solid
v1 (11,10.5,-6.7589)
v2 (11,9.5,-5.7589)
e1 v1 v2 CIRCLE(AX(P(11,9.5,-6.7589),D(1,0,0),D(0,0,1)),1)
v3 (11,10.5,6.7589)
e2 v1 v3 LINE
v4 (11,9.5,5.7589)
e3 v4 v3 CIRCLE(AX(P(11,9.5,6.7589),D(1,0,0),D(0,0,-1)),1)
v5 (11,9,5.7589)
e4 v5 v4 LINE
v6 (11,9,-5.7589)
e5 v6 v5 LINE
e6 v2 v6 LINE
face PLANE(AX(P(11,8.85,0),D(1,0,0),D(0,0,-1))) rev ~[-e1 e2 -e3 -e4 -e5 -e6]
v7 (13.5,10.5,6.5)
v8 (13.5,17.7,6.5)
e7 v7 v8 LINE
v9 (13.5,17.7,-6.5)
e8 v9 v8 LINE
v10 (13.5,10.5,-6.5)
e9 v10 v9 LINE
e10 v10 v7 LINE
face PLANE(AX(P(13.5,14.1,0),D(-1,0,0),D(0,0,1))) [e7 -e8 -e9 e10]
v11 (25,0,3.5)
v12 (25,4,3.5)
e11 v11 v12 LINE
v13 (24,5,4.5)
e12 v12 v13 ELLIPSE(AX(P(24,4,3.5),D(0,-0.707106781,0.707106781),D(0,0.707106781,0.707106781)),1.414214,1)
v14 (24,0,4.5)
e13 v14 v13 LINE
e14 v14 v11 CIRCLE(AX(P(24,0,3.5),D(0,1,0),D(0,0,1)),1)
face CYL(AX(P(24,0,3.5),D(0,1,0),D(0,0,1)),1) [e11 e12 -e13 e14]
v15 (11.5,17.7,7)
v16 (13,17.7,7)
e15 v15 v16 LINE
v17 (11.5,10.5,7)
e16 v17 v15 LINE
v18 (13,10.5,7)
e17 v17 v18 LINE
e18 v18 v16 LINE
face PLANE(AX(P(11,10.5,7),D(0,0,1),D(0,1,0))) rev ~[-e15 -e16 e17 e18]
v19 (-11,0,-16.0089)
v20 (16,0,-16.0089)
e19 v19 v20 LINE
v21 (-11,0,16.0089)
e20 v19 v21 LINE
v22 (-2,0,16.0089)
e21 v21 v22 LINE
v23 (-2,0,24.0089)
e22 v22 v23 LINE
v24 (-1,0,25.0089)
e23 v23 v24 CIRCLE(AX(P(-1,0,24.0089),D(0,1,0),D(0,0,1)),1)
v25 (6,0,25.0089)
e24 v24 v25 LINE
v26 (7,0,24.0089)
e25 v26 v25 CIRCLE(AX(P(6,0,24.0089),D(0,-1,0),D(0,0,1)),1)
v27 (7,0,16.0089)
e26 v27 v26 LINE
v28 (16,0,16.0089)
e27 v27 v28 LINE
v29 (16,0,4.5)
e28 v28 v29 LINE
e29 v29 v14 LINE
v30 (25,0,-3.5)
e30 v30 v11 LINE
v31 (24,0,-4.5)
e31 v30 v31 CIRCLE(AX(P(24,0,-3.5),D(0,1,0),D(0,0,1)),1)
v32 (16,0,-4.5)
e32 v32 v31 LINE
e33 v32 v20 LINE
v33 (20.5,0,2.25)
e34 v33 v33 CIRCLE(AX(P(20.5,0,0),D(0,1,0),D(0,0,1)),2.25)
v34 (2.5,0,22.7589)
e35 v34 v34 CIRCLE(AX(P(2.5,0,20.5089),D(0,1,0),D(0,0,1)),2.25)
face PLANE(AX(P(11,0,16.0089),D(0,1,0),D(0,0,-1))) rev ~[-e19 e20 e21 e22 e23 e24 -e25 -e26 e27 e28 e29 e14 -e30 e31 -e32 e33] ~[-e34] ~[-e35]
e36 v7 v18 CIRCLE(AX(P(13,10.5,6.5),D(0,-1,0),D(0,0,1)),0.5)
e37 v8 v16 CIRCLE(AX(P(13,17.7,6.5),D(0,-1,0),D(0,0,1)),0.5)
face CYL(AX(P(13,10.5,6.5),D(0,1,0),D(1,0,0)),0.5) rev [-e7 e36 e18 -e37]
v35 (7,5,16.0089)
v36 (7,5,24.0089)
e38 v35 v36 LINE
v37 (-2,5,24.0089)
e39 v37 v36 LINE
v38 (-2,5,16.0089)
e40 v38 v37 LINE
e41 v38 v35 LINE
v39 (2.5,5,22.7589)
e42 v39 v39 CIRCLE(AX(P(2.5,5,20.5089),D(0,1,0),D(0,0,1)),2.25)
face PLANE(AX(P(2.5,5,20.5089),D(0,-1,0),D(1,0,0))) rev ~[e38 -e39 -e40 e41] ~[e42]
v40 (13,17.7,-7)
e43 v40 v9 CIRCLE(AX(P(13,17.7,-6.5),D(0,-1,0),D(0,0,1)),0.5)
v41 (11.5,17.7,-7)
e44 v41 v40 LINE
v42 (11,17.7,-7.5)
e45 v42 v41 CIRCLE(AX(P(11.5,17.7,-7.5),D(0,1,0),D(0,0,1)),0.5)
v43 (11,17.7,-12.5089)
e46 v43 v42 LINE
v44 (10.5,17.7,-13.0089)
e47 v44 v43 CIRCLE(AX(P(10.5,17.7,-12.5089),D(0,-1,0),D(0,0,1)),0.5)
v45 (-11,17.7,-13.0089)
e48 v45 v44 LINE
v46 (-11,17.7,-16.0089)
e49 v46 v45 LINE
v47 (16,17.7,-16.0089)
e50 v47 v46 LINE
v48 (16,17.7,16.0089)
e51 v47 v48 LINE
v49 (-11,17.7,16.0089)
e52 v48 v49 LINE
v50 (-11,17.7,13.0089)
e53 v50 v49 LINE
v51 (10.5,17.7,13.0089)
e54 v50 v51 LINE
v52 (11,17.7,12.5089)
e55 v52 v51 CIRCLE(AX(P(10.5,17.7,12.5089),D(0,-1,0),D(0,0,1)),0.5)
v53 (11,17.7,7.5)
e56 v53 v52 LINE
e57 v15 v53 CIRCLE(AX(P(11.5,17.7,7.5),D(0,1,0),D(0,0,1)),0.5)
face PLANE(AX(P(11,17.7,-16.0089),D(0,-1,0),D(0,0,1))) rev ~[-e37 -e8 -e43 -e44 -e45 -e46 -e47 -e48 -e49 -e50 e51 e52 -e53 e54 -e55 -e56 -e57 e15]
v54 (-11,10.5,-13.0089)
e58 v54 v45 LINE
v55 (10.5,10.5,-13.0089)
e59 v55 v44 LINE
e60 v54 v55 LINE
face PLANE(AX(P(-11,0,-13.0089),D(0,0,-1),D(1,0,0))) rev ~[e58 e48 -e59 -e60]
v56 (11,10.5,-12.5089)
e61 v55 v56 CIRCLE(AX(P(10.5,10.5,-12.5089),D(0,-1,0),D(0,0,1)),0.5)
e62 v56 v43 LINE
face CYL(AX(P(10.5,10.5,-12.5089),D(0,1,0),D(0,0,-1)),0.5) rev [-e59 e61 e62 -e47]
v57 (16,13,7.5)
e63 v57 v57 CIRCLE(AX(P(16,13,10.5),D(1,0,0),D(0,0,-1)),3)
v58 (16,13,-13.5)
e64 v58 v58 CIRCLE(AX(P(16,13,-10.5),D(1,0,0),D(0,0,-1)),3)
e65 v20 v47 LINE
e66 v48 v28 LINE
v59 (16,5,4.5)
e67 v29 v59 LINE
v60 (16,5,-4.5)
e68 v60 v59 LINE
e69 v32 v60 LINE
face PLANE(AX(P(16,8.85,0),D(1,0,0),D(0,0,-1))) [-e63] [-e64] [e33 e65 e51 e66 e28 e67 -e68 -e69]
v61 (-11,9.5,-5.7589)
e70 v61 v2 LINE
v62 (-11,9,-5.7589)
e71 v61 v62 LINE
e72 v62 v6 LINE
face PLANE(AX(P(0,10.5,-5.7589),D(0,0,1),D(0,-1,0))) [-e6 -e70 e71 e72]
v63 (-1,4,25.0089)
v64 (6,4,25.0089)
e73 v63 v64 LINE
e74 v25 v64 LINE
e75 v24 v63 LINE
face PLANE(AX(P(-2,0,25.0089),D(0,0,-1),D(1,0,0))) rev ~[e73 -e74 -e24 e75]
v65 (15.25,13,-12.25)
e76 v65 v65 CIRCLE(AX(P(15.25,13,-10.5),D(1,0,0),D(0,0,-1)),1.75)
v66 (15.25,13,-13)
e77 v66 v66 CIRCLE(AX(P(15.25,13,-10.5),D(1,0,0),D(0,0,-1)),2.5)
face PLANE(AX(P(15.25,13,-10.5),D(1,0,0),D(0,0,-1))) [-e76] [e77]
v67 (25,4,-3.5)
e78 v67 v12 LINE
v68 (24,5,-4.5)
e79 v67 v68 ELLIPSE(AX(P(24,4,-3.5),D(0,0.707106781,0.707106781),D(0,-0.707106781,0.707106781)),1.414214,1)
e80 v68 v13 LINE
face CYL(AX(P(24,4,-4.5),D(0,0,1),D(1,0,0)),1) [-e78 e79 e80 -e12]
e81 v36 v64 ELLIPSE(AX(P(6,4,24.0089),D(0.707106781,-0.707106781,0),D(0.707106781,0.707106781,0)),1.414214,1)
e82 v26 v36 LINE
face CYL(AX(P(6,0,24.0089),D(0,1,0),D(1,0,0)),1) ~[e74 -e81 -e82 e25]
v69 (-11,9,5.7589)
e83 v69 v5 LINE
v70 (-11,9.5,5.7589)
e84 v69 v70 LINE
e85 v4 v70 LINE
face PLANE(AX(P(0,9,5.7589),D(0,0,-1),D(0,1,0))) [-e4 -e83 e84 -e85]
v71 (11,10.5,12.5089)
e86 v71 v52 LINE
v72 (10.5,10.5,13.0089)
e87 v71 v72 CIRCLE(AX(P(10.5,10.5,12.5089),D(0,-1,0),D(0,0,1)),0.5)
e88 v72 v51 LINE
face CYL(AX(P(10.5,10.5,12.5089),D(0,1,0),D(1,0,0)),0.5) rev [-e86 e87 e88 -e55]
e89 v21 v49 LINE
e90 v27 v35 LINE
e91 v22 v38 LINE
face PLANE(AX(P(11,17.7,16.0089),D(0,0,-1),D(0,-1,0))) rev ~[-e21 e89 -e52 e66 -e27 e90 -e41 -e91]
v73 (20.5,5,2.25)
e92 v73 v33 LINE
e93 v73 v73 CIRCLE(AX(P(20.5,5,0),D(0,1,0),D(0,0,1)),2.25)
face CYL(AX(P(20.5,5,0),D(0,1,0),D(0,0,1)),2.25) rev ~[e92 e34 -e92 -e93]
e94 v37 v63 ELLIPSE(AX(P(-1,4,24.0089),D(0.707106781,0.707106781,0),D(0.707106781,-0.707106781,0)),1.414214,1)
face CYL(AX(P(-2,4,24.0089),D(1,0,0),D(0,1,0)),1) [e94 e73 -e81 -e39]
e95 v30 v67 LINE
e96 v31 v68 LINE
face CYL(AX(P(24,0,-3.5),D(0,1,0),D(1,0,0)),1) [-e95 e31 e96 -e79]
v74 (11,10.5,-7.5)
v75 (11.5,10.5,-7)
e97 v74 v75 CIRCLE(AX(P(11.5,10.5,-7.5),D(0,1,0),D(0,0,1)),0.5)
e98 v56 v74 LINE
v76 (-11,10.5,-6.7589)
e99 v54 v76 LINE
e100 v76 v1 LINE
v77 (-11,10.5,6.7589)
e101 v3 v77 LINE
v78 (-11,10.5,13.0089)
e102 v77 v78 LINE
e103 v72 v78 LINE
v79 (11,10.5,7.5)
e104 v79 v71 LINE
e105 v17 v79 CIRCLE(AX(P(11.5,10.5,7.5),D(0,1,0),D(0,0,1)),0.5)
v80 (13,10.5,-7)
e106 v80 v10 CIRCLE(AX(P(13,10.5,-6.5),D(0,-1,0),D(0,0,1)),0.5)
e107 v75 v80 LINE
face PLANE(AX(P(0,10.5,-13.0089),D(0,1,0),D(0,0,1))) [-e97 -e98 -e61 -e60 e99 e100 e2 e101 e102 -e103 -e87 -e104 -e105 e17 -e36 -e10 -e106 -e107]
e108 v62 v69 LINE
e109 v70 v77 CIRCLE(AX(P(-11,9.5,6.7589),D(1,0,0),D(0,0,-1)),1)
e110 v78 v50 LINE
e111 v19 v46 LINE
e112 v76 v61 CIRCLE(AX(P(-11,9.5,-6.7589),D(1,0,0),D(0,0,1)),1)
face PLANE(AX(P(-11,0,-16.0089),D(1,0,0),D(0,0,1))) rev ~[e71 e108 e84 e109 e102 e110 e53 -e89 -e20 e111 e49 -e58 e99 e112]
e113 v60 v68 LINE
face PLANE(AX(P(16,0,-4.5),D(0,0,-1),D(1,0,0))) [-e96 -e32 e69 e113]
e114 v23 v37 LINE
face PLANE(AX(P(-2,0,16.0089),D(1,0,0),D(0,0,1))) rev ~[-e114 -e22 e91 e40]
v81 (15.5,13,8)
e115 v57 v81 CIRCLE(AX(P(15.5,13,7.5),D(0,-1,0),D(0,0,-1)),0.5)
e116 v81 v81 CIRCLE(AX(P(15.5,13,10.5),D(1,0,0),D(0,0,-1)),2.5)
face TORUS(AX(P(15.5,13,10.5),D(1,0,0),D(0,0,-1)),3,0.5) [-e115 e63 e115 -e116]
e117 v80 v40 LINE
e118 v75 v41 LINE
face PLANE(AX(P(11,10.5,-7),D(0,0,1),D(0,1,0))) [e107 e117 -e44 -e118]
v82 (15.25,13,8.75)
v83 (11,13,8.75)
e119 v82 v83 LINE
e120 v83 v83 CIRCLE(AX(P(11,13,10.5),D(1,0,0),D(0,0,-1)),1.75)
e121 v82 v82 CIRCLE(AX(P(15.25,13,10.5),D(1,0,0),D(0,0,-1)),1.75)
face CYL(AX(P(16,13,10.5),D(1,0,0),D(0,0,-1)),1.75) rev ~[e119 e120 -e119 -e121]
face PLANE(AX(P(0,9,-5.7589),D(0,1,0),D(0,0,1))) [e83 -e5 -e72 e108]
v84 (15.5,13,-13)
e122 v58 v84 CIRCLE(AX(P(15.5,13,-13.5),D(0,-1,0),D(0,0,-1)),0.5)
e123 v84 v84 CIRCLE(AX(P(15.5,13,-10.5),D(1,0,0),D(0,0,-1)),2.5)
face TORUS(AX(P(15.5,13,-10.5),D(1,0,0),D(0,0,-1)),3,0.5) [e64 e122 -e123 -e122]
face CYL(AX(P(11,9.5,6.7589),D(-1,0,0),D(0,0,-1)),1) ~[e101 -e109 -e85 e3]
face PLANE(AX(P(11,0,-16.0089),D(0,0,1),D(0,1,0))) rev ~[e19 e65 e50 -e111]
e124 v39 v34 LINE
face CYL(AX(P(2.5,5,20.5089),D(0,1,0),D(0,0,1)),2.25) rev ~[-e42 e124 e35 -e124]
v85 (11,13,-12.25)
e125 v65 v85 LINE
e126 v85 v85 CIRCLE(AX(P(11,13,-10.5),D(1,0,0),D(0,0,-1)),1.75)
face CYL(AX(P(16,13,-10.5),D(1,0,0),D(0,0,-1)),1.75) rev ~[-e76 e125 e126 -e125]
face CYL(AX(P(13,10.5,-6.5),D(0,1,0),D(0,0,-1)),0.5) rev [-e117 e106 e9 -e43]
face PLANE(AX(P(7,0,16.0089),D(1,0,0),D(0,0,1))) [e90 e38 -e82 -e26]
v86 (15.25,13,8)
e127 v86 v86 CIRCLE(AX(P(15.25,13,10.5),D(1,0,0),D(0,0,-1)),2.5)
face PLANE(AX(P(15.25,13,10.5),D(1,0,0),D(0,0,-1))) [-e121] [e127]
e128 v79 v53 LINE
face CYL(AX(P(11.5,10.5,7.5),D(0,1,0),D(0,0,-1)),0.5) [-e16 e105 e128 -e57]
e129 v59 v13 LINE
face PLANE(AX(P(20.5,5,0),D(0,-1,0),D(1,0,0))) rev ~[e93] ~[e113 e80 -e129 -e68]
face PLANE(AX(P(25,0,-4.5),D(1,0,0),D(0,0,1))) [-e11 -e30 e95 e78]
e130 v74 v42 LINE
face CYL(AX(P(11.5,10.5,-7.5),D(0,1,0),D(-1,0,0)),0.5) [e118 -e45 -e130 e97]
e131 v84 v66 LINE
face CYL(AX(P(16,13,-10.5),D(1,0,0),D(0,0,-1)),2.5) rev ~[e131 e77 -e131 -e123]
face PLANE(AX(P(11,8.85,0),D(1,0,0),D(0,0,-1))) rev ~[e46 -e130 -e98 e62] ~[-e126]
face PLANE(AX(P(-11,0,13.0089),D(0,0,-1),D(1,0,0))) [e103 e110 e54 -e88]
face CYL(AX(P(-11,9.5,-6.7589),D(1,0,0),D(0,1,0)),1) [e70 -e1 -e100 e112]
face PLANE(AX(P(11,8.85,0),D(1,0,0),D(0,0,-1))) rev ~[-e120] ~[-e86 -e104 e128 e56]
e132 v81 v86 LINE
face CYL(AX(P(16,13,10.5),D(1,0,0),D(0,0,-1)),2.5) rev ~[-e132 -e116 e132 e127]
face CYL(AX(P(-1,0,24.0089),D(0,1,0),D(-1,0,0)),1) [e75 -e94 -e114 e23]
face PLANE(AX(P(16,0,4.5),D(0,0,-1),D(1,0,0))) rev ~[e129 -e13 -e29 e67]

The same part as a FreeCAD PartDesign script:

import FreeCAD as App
import Part
import Sketcher
from FreeCAD import Vector
Q = App.Units.Quantity


def edges_at(feature, points):
    """Names of the edges that pass closest to the given points."""
    edges = feature.Shape.Edges
    near = lambda p: min(range(len(edges)), key=lambda i: edges[i].distToShape(Part.Vertex(*p))[0])
    return sorted({f"Edge{near(p) + 1}" for p in points})


def add_polygon(sketch, points):
    """Adds a closed chain of lines whose ends are joined by coincident constraints."""
    first, n = sketch.GeometryCount, len(points)
    for a, b in zip(points, points[1:] + points[:1]):
        sketch.addGeometry(Part.LineSegment(App.Vector(*a, 0), App.Vector(*b, 0)), False)
    for i in range(n):
        sketch.addConstraint(Sketcher.Constraint("Coincident", first + i, 2, first + (i + 1) % n, 1))

doc = App.newDocument("Part")
body = doc.addObject("PartDesign::Body", "Body")

# Sketch on YZ plane
sketch1 = body.newObject("Sketcher::SketchObject", "Sketch")
sketch1.AttachmentSupport = (doc.getObject("YZ_Plane"), [""])
sketch1.MapMode = "FlatFace"
add_polygon(sketch1, [(0, 13), (0, -13), (10.5, -13), (10.5, -5.8), (9, -5.8), (9, 5.8), (10.5, 5.8), (10.5, 13)])  # lines 0-7
sketch1.addConstraint(Sketcher.Constraint("Vertical", 0))
sketch1.addConstraint(Sketcher.Constraint("Horizontal", 1))
sketch1.addConstraint(Sketcher.Constraint("Vertical", 2))
sketch1.addConstraint(Sketcher.Constraint("Horizontal", 3))
sketch1.addConstraint(Sketcher.Constraint("Vertical", 4))
sketch1.addConstraint(Sketcher.Constraint("Horizontal", 5))
sketch1.addConstraint(Sketcher.Constraint("Vertical", 6))
sketch1.addConstraint(Sketcher.Constraint("Horizontal", 7))
sketch1.addConstraint(Sketcher.Constraint("Symmetric", 0, 2, 7, 2, -1, 1))
sketch1.addConstraint(Sketcher.Constraint("Symmetric", 2, 2, 5, 2, -1))
sketch1.addConstraint(Sketcher.Constraint("DistanceX", 1, 1, 1, 2, Q("10.5 mm")))
sketch1.addConstraint(Sketcher.Constraint("DistanceX", 3, 2, 3, 1, Q("1.5 mm")))
sketch1.addConstraint(Sketcher.Constraint("DistanceY", 2, 1, 2, 2, Q("7.25 mm")))
sketch1.addConstraint(Sketcher.Constraint("DistanceY", 0, 2, 0, 1, Q("26.0178 mm")))
pad1 = body.newObject("PartDesign::Pad", "Pad")
pad1.Profile = sketch1
pad1.Length = 22
pad1.Midplane = True

# Sketch on XZ plane
sketch2 = body.newObject("Sketcher::SketchObject", "Sketch001")
sketch2.AttachmentSupport = (doc.getObject("XZ_Plane"), [""])
sketch2.MapMode = "FlatFace"
add_polygon(sketch2, [(-11, -13), (-11, -16), (11, -16), (11, -13)])  # lines 0-3
add_polygon(sketch2, [(-11, 16), (-11, 13), (11, 13), (11, 16)])  # lines 4-7
sketch2.addConstraint(Sketcher.Constraint("Vertical", 0))
sketch2.addConstraint(Sketcher.Constraint("Horizontal", 1))
sketch2.addConstraint(Sketcher.Constraint("Vertical", 2))
sketch2.addConstraint(Sketcher.Constraint("Horizontal", 3))
sketch2.addConstraint(Sketcher.Constraint("Vertical", 4))
sketch2.addConstraint(Sketcher.Constraint("Horizontal", 5))
sketch2.addConstraint(Sketcher.Constraint("Vertical", 6))
sketch2.addConstraint(Sketcher.Constraint("Horizontal", 7))
sketch2.addConstraint(Sketcher.Constraint("Symmetric", 2, 2, 4, 2, -1, 1))
sketch2.addConstraint(Sketcher.Constraint("Symmetric", 0, 2, 6, 2, -1, 1))
sketch2.addConstraint(Sketcher.Constraint("Vertical", 3, 2, 4, 2))
sketch2.addConstraint(Sketcher.Constraint("DistanceX", 1, 1, 1, 2, Q("22 mm")))
sketch2.addConstraint(Sketcher.Constraint("DistanceY", 0, 2, 0, 1, Q("3 mm")))
sketch2.addConstraint(Sketcher.Constraint("DistanceY", 0, 2, -1, 1, Q("16.0089 mm")))
pad2 = body.newObject("PartDesign::Pad", "Pad001")
pad2.Profile = sketch2
pad2.Length = 17.7
pad2.Reversed = True

# Sketch on YZ plane
sketch3 = body.newObject("Sketcher::SketchObject", "Sketch002")
sketch3.AttachmentSupport = (doc.getObject("YZ_Plane"), [""])
sketch3.MapMode = "FlatFace"
sketch3.AttachmentOffset = App.Placement(Vector(0, 0, 11), App.Rotation())
add_polygon(sketch3, [(18, 16), (0, 16), (0, -16), (18, -16)])  # lines 0-3
sketch3.addConstraint(Sketcher.Constraint("Horizontal", 0))
sketch3.addConstraint(Sketcher.Constraint("Vertical", 1))
sketch3.addConstraint(Sketcher.Constraint("Horizontal", 2))
sketch3.addConstraint(Sketcher.Constraint("Vertical", 3))
sketch3.addConstraint(Sketcher.Constraint("Symmetric", 0, 2, 1, 2, -1, 1))
sketch3.addConstraint(Sketcher.Constraint("DistanceX", 0, 2, 0, 1, Q("17.7 mm")))
sketch3.addConstraint(Sketcher.Constraint("DistanceY", 1, 2, 1, 1, Q("32.0178 mm")))
pad3 = body.newObject("PartDesign::Pad", "Pad002")
pad3.Profile = sketch3
pad3.Length = 5

# Sketch on YZ plane
sketch4 = body.newObject("Sketcher::SketchObject", "Sketch003")
sketch4.AttachmentSupport = (doc.getObject("YZ_Plane"), [""])
sketch4.MapMode = "FlatFace"
sketch4.AttachmentOffset = App.Placement(Vector(0, 0, 16), App.Rotation())
sketch4.addGeometry(Part.Circle(Vector(13, 10.5, 0), Vector(0, 0, 1), 1.8), False)
sketch4.addGeometry(Part.Circle(Vector(13, -10.5, 0), Vector(0, 0, 1), 1.8), False)
sketch4.addConstraint(Sketcher.Constraint("Equal", 0, 1))
sketch4.addConstraint(Sketcher.Constraint("Symmetric", 0, 3, 1, 3, -1))
sketch4.addConstraint(Sketcher.Constraint("Diameter", 0, Q("3.5 mm")))
sketch4.addConstraint(Sketcher.Constraint("DistanceX", -1, 1, 0, 3, Q("13 mm")))
sketch4.addConstraint(Sketcher.Constraint("DistanceY", 1, 3, 0, 3, Q("21 mm")))
pocket1 = body.newObject("PartDesign::Pocket", "Pocket")
pocket1.Profile = sketch4
pocket1.Type = "ThroughAll"

# Sketch on XZ plane
sketch5 = body.newObject("Sketcher::SketchObject", "Sketch004")
sketch5.AttachmentSupport = (doc.getObject("XZ_Plane"), [""])
sketch5.MapMode = "FlatFace"
add_polygon(sketch5, [(16, 4), (16, -4), (25, -4), (25, 4)])  # lines 0-3
add_polygon(sketch5, [(-2, 25), (-2, 16), (7, 16), (7, 25)])  # lines 4-7
sketch5.addConstraint(Sketcher.Constraint("Vertical", 0))
sketch5.addConstraint(Sketcher.Constraint("Horizontal", 1))
sketch5.addConstraint(Sketcher.Constraint("Vertical", 2))
sketch5.addConstraint(Sketcher.Constraint("Horizontal", 3))
sketch5.addConstraint(Sketcher.Constraint("Vertical", 4))
sketch5.addConstraint(Sketcher.Constraint("Horizontal", 5))
sketch5.addConstraint(Sketcher.Constraint("Vertical", 6))
sketch5.addConstraint(Sketcher.Constraint("Horizontal", 7))
sketch5.addConstraint(Sketcher.Constraint("Equal", 3, 5))
sketch5.addConstraint(Sketcher.Constraint("Equal", 7, 0))
sketch5.addConstraint(Sketcher.Constraint("Equal", 2, 4))
sketch5.addConstraint(Sketcher.Constraint("DistanceX", 1, 1, 1, 2, Q("9 mm")))
sketch5.addConstraint(Sketcher.Constraint("DistanceX", -1, 1, 0, 2, Q("16 mm")))
sketch5.addConstraint(Sketcher.Constraint("DistanceX", 4, 2, -1, 1, Q("2 mm")))
sketch5.addConstraint(Sketcher.Constraint("DistanceY", 0, 2, -1, 1, Q("4.5 mm")))
sketch5.addConstraint(Sketcher.Constraint("DistanceY", -1, 1, 4, 2, Q("16.0089 mm")))
pad4 = body.newObject("PartDesign::Pad", "Pad003")
pad4.Profile = sketch5
pad4.Length = 5
pad4.Reversed = True

# Sketch on XZ plane
sketch6 = body.newObject("Sketcher::SketchObject", "Sketch005")
sketch6.AttachmentSupport = (doc.getObject("XZ_Plane"), [""])
sketch6.MapMode = "FlatFace"
sketch6.AttachmentOffset = App.Placement(Vector(0, 0, -5), App.Rotation())
sketch6.addGeometry(Part.Circle(Vector(20.5, 0, 0), Vector(0, 0, 1), 2.2), False)
sketch6.addGeometry(Part.Circle(Vector(2.5, 20.5, 0), Vector(0, 0, 1), 2.2), False)
sketch6.addConstraint(Sketcher.Constraint("Equal", 0, 1))
sketch6.addConstraint(Sketcher.Constraint("PointOnObject", 0, 3, -1))
sketch6.addConstraint(Sketcher.Constraint("Diameter", 0, Q("4.5 mm")))
sketch6.addConstraint(Sketcher.Constraint("DistanceX", 1, 3, 0, 3, Q("18 mm")))
sketch6.addConstraint(Sketcher.Constraint("DistanceX", -1, 1, 0, 3, Q("20.5 mm")))
sketch6.addConstraint(Sketcher.Constraint("DistanceY", -1, 1, 1, 3, Q("20.5089 mm")))
pocket2 = body.newObject("PartDesign::Pocket", "Pocket001")
pocket2.Profile = sketch6
pocket2.Type = "ThroughAll"
pocket2.Reversed = True
doc.recompute()

fillet = body.newObject("PartDesign::Fillet", "Fillet")
fillet.Base = (pocket2, edges_at(pocket2, [
    (0, 10.5, 5.759),
    (0, 10.5, -5.759),
    (25, 5, 0),
    (25, 2.5, 4.5),
    (25, 2.5, -4.5),
    (7, 2.5, 25.009),
    (2.5, 5, 25.009),
    (-2, 2.5, 25.009),
]))
fillet.Radius = 1

# Sketch on YZ plane
sketch7 = body.newObject("Sketcher::SketchObject", "Sketch006")
sketch7.AttachmentSupport = (doc.getObject("YZ_Plane"), [""])
sketch7.MapMode = "FlatFace"
sketch7.AttachmentOffset = App.Placement(Vector(0, 0, 16), App.Rotation())
sketch7.addGeometry(Part.Circle(Vector(13, 10.5, 0), Vector(0, 0, 1), 2.5), False)
sketch7.addGeometry(Part.Circle(Vector(13, -10.5, 0), Vector(0, 0, 1), 2.5), False)
sketch7.addConstraint(Sketcher.Constraint("Equal", 0, 1))
sketch7.addConstraint(Sketcher.Constraint("Symmetric", 0, 3, 1, 3, -1))
sketch7.addConstraint(Sketcher.Constraint("Diameter", 0, Q("5 mm")))
sketch7.addConstraint(Sketcher.Constraint("DistanceX", -1, 1, 0, 3, Q("13 mm")))
sketch7.addConstraint(Sketcher.Constraint("DistanceY", 1, 3, 0, 3, Q("21 mm")))
pocket3 = body.newObject("PartDesign::Pocket", "Pocket002")
pocket3.Profile = sketch7
pocket3.Length = 0.75
doc.recompute()

fillet2 = body.newObject("PartDesign::Fillet", "Fillet001")
fillet2.Base = (pocket3, edges_at(pocket3, [(16, 13, 13), (16, 13, -8)]))
fillet2.Radius = 0.5

# Sketch on YZ plane
sketch8 = body.newObject("Sketcher::SketchObject", "Sketch007")
sketch8.AttachmentSupport = (doc.getObject("YZ_Plane"), [""])
sketch8.MapMode = "FlatFace"
sketch8.AttachmentOffset = App.Placement(Vector(0, 0, 11), App.Rotation())
add_polygon(sketch8, [(18, -7), (10, -7), (10, 7), (18, 7)])  # lines 0-3
sketch8.addConstraint(Sketcher.Constraint("Horizontal", 0))
sketch8.addConstraint(Sketcher.Constraint("Vertical", 1))
sketch8.addConstraint(Sketcher.Constraint("Horizontal", 2))
sketch8.addConstraint(Sketcher.Constraint("Vertical", 3))
sketch8.addConstraint(Sketcher.Constraint("DistanceY", 1, 1, 1, 2, Q("14 mm")))
sketch8.addConstraint(Sketcher.Constraint("DistanceX", 0, 2, 0, 1, Q("7.2 mm")))
sketch8.addConstraint(Sketcher.Constraint("DistanceY", 0, 2, -1, 1, Q("7 mm")))
sketch8.addConstraint(Sketcher.Constraint("DistanceX", -1, 1, 0, 2, Q("10.5 mm")))
pocket4 = body.newObject("PartDesign::Pocket", "Pocket003")
pocket4.Profile = sketch8
pocket4.Length = 2.5
pocket4.Reversed = True
doc.recompute()

fillet3 = body.newObject("PartDesign::Fillet", "Fillet002")
fillet3.Base = (pocket4, edges_at(pocket4, [
    (13.5, 14.1, -7),
    (13.5, 14.1, 7),
    (11, 14.1, -7),
    (11, 14.1, 7),
    (11, 14.1, -13.009),
    (11, 14.1, 13.009),
]))
fillet3.Radius = 0.5

doc.recompute()
